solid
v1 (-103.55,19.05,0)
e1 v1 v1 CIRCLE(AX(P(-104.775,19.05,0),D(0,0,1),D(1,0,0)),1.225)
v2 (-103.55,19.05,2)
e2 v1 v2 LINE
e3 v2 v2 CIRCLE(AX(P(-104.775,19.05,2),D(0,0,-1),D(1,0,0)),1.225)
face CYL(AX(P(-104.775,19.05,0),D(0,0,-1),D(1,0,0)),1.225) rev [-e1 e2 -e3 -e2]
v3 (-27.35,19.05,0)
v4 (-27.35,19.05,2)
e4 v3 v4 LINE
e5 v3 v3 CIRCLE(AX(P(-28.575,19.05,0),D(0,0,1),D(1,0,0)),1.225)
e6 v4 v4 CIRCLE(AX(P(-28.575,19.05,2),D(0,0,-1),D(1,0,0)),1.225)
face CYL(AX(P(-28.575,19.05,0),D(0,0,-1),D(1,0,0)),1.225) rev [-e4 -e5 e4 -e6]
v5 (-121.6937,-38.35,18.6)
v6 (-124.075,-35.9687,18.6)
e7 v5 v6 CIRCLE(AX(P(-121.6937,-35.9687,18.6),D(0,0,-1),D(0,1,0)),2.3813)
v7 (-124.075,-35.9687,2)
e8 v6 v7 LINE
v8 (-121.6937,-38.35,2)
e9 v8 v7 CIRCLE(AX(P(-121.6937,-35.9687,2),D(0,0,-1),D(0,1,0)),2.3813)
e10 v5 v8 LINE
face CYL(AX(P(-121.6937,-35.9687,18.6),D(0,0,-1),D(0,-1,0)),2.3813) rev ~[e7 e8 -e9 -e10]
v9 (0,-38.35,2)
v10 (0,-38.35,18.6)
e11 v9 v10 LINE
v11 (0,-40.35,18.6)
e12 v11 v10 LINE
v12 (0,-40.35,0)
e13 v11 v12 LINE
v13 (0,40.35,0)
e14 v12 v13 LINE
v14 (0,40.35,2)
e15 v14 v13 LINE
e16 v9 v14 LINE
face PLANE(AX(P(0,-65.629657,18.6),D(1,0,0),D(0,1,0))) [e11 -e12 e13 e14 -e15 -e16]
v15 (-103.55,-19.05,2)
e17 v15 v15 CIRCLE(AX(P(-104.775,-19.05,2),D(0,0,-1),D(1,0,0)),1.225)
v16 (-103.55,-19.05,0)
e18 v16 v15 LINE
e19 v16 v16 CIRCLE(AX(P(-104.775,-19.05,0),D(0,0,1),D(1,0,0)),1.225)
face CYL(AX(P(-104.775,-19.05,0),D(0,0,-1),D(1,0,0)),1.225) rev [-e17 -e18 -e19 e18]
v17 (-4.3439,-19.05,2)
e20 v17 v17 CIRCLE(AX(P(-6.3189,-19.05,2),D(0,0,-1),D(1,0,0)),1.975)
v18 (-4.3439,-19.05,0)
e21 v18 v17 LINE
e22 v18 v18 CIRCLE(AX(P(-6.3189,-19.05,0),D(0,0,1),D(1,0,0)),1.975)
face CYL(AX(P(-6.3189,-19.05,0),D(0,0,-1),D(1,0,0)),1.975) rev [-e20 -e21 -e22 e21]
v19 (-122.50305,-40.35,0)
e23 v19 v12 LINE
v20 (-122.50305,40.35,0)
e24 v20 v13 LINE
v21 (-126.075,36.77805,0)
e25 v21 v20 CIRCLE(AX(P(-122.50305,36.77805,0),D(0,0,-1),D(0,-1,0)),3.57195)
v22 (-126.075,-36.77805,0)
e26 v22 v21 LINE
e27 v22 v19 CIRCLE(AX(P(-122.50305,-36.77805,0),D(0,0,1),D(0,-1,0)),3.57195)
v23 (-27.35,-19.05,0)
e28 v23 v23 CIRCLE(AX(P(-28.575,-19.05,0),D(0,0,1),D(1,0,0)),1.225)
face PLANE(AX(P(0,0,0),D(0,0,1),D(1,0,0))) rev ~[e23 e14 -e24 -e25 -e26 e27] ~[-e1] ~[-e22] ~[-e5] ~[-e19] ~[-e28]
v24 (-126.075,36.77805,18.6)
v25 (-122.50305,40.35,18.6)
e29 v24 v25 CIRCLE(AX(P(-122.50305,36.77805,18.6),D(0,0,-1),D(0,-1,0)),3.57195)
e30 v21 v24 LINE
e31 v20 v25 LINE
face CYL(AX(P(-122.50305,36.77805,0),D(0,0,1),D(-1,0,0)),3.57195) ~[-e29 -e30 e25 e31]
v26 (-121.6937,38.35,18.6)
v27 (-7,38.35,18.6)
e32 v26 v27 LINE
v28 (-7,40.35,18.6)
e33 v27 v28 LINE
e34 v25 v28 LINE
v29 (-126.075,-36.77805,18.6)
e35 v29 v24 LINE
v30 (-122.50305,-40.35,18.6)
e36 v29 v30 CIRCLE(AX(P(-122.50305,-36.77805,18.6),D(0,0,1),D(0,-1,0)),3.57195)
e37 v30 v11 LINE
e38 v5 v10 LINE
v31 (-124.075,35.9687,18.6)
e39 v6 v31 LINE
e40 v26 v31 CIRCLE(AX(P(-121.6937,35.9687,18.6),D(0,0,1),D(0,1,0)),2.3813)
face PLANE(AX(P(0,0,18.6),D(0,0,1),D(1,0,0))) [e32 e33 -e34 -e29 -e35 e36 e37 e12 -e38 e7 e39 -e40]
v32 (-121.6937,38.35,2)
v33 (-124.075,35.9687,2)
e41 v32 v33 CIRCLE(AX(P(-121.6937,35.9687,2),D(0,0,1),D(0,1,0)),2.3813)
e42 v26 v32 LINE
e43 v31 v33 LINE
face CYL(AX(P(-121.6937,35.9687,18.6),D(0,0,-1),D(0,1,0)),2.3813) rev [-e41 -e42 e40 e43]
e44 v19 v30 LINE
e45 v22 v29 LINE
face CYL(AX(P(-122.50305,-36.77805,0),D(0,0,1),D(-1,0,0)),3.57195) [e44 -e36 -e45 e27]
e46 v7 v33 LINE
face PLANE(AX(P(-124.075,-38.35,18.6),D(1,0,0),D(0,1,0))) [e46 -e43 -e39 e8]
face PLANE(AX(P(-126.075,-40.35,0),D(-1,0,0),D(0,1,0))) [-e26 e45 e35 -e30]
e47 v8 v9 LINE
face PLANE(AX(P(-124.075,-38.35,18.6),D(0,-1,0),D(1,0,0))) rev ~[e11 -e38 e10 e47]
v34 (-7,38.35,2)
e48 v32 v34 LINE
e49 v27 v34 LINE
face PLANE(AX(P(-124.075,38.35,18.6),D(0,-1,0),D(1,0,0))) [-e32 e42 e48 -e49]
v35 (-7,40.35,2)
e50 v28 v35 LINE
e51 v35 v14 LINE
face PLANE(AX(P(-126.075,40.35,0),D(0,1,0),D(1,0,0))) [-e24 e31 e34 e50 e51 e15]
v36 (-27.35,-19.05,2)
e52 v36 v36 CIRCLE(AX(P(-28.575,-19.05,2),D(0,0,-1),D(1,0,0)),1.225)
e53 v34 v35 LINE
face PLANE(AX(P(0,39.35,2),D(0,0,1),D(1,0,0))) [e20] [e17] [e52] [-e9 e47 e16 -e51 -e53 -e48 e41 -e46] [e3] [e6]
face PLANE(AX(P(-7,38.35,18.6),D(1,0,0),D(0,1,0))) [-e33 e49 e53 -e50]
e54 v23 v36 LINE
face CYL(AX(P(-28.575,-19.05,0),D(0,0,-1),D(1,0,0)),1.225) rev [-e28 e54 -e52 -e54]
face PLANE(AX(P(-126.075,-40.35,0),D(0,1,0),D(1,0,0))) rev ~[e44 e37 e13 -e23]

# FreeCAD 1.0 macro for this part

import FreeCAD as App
import Part
import Sketcher

V = App.Vector
Q = App.Units.Quantity


def edges_at(feature, points):
    """Names of the edges that pass closest to the given points."""
    edges = feature.Shape.Edges
    near = lambda p: min(range(len(edges)), key=lambda i: edges[i].distToShape(Part.Vertex(*p))[0])
    return sorted({f"Edge{near(p) + 1}" for p in points})


def add_polygon(sketch, points):
    """Adds a closed chain of lines whose ends are joined by coincident constraints."""
    first, n = sketch.GeometryCount, len(points)
    for a, b in zip(points, points[1:] + points[:1]):
        sketch.addGeometry(Part.LineSegment(App.Vector(*a, 0), App.Vector(*b, 0)), False)
    for i in range(n):
        sketch.addConstraint(Sketcher.Constraint("Coincident", first + i, 2, first + (i + 1) % n, 1))

doc = App.newDocument("Part")
body = doc.addObject("PartDesign::Body", "Body")

sketch1 = body.newObject("Sketcher::SketchObject", "Sketch")
sketch1.AttachmentSupport = (doc.getObject("XY_Plane"), [""])
sketch1.MapMode = "FlatFace"
add_polygon(sketch1, [(-126.1, 40.4), (-126.1, -40.4), (126.1, -40.4), (126.1, 40.4)])
sketch1.addGeometry(Part.Circle(V(-104.8, -19.1, 0), V(0, 0, 1), 1.2), False)
sketch1.addGeometry(Part.Circle(V(-28.6, -19.1, 0), V(0, 0, 1), 1.2), False)
sketch1.addGeometry(Part.Circle(V(-6.3, -19.1, 0), V(0, 0, 1), 2), False)
sketch1.addGeometry(Part.Circle(V(6.3, -19.1, 0), V(0, 0, 1), 2), False)
sketch1.addGeometry(Part.Circle(V(28.6, -19.1, 0), V(0, 0, 1), 1.2), False)
sketch1.addGeometry(Part.Circle(V(104.8, -19.1, 0), V(0, 0, 1), 1.2), False)
sketch1.addGeometry(Part.Circle(V(-104.8, 19.1, 0), V(0, 0, 1), 1.2), False)
sketch1.addGeometry(Part.Circle(V(-28.6, 19.1, 0), V(0, 0, 1), 1.2), False)
sketch1.addGeometry(Part.Circle(V(28.6, 19.1, 0), V(0, 0, 1), 1.2), False)
sketch1.addGeometry(Part.Circle(V(104.8, 19.1, 0), V(0, 0, 1), 1.2), False)
sketch1.addConstraint([
    Sketcher.Constraint("Vertical", 0),
    Sketcher.Constraint("Horizontal", 1),
    Sketcher.Constraint("Vertical", 2),
    Sketcher.Constraint("Horizontal", 3),
    Sketcher.Constraint("Equal", 4, 5),
    Sketcher.Constraint("Equal", 6, 7),
    Sketcher.Constraint("Equal", 5, 8),
    Sketcher.Constraint("Equal", 8, 9),
    Sketcher.Constraint("Equal", 9, 10),
    Sketcher.Constraint("Equal", 10, 11),
    Sketcher.Constraint("Equal", 11, 12),
    Sketcher.Constraint("Equal", 12, 13),
    Sketcher.Constraint("Symmetric", 9, 3, 10, 3, -1, 1),
    Sketcher.Constraint("Symmetric", 8, 3, 11, 3, -1, 1),
    Sketcher.Constraint("Symmetric", 5, 3, 12, 3, -1, 1),
    Sketcher.Constraint("Symmetric", 4, 3, 13, 3, -1, 1),
    Sketcher.Constraint("Symmetric", 0, 2, 2, 2, -1, 1),
    Sketcher.Constraint("Symmetric", 6, 3, 7, 3, -2),
    Sketcher.Constraint("Symmetric", 5, 3, 8, 3, -2),
    Sketcher.Constraint("Symmetric", 4, 3, 9, 3, -2),
    Sketcher.Constraint("Horizontal", 4, 3, 5, 3),
    Sketcher.Constraint("Horizontal", 5, 3, 6, 3),
    Sketcher.Constraint("Diameter", 4, Q("2.45 mm")),
    Sketcher.Constraint("Diameter", 6, Q("3.95 mm")),
    Sketcher.Constraint("DistanceY", 0, 2, 0, 1, Q("80.7 mm")),
    Sketcher.Constraint("DistanceX", 1, 1, 1, 2, Q("252.15 mm")),
    Sketcher.Constraint("DistanceX", 4, 3, 5, 3, Q("76.2 mm")),
    Sketcher.Constraint("DistanceY", 4, 3, 10, 3, Q("38.1 mm")),
    Sketcher.Constraint("DistanceX", 0, 2, 4, 3, Q("21.3 mm")),
    Sketcher.Constraint("DistanceX", 6, 3, -1, 1, Q("6.3189 mm")),
])
pad1 = body.newObject("PartDesign::Pad", "Pad")
pad1.Profile = sketch1
pad1.Length = 18.6

sketch2 = body.newObject("Sketcher::SketchObject", "Sketch001")
sketch2.AttachmentSupport = (doc.getObject("XY_Plane"), [""])
sketch2.MapMode = "FlatFace"
sketch2.AttachmentOffset = App.Placement(V(0, 0, 18.6), App.Rotation())
add_polygon(sketch2, [(-124, 38), (-124, -38), (124, -38), (124, 38)])
sketch2.addConstraint([
    Sketcher.Constraint("Vertical", 0),
    Sketcher.Constraint("Horizontal", 1),
    Sketcher.Constraint("Vertical", 2),
    Sketcher.Constraint("Horizontal", 3),
    Sketcher.Constraint("Symmetric", 0, 2, 2, 2, -1, 1),
    Sketcher.Constraint("DistanceY", 0, 2, 0, 1, Q("76.7 mm")),
    Sketcher.Constraint("DistanceX", 1, 1, 1, 2, Q("248.15 mm")),
])
pocket1 = body.newObject("PartDesign::Pocket", "Pocket")
pocket1.Profile = sketch2
pocket1.Length = 16.6
doc.recompute()

fillet = body.newObject("PartDesign::Fillet", "Fillet")
fillet.Base = (pocket1, edges_at(pocket1, [
    (-124.075, 38.35, 10.3),
    (-124.075, -38.35, 10.3),
    (124.075, 38.35, 10.3),
    (124.075, -38.35, 10.3),
]))
fillet.Radius = 2.3813
doc.recompute()

fillet2 = body.newObject("PartDesign::Fillet", "Fillet001")
fillet2.Base = (fillet, edges_at(fillet, [
    (-126.075, 40.35, 9.3),
    (-126.075, -40.35, 9.3),
    (126.075, -40.35, 9.3),
    (126.075, 40.35, 9.3),
]))
fillet2.Radius = 3.57195

sketch3 = body.newObject("Sketcher::SketchObject", "Sketch002")
sketch3.AttachmentSupport = (doc.getObject("XY_Plane"), [""])
sketch3.MapMode = "FlatFace"
sketch3.AttachmentOffset = App.Placement(V(0, 0, 18.6), App.Rotation())
add_polygon(sketch3, [(-7, 40.4), (-7, 38.4), (7, 38.4), (7, 40.4)])
sketch3.addConstraint([
    Sketcher.Constraint("Vertical", 0),
    Sketcher.Constraint("Horizontal", 1),
    Sketcher.Constraint("Vertical", 2),
    Sketcher.Constraint("Horizontal", 3),
    Sketcher.Constraint("DistanceX", 1, 1, 1, 2, Q("14 mm")),
    Sketcher.Constraint("DistanceY", 0, 2, 0, 1, Q("2 mm")),
    Sketcher.Constraint("DistanceX", 0, 2, -1, 1, Q("7 mm")),
    Sketcher.Constraint("DistanceY", -1, 1, 0, 2, Q("38.35 mm")),
])
pocket2 = body.newObject("PartDesign::Pocket", "Pocket001")
pocket2.Profile = sketch3
pocket2.Length = 16.6

sketch4 = body.newObject("Sketcher::SketchObject", "Sketch003")
sketch4.AttachmentSupport = (doc.getObject("XY_Plane"), [""])
sketch4.MapMode = "FlatFace"
sketch4.AttachmentOffset = App.Placement(V(0, 0, 18.6), App.Rotation())
add_polygon(sketch4, [(0, 66), (0, -66), (131, -66), (131, 66)])
sketch4.addConstraint([
    Sketcher.Constraint("Vertical", 0),
    Sketcher.Constraint("Horizontal", 1),
    Sketcher.Constraint("Vertical", 2),
    Sketcher.Constraint("Horizontal", 3),
    Sketcher.Constraint("Symmetric", 0, 2, 3, 2, -1, 1),
    Sketcher.Constraint("Equal", 3, 0),
    Sketcher.Constraint("DistanceX", 1, 1, 1, 2, Q("131.259314 mm")),
])
pocket3 = body.newObject("PartDesign::Pocket", "Pocket002")
pocket3.Profile = sketch4
pocket3.Length = 20

doc.recompute()
